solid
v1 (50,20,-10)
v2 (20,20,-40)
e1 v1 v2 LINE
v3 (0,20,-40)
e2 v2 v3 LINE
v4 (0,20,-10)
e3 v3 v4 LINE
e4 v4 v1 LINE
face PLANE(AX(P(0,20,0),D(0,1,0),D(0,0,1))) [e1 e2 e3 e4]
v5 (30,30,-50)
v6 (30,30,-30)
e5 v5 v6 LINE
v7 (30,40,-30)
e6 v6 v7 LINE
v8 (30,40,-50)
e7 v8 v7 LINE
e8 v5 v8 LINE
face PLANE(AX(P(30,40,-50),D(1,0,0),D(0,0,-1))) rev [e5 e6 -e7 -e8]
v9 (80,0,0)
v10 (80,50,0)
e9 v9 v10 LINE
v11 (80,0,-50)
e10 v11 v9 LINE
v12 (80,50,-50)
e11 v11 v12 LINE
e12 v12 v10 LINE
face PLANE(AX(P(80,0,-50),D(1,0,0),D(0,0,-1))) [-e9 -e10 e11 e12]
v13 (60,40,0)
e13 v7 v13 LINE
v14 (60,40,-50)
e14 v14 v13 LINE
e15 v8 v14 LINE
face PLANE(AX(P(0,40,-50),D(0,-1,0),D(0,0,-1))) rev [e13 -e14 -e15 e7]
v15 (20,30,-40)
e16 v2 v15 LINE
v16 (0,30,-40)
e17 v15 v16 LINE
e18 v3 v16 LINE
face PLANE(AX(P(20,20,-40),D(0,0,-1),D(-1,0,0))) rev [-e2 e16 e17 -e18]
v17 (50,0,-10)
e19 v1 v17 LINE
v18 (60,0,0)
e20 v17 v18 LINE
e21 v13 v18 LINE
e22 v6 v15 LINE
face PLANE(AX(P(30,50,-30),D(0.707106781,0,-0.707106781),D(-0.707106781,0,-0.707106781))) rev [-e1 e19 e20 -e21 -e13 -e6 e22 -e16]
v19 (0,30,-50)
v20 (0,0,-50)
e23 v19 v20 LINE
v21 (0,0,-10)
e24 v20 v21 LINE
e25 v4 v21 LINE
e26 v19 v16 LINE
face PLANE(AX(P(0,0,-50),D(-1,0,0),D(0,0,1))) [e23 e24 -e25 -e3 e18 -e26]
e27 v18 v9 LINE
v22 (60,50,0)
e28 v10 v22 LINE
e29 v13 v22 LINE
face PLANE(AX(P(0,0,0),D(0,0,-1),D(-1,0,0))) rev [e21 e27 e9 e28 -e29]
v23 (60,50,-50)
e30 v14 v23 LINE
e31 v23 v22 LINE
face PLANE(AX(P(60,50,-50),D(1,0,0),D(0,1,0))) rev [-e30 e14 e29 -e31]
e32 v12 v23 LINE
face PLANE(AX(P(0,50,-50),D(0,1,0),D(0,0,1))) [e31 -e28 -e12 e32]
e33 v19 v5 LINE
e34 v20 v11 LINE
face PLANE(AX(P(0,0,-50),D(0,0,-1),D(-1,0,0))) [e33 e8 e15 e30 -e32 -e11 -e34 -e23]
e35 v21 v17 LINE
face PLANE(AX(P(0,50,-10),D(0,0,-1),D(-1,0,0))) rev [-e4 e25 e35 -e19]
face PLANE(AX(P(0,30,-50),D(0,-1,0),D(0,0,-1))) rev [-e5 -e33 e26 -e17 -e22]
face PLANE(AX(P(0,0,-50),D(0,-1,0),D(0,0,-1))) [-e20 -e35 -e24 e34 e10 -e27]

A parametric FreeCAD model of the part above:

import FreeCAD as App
import Part
import Sketcher

doc = App.newDocument("Part")
params = doc.addObject("Spreadsheet::Sheet", "Params")
for row, (alias, value) in enumerate([
    ("sketch1_width", "80 mm"),
    ("sketch1_height", "50 mm"),
    ("pad1_length", "50 mm"),
    ("sketch2_width", "60 mm"),
    ("sketch2_height", "10 mm"),
    ("pocket1_length", "50 mm"),
    ("sketch3_width", "30 mm"),
    ("sketch3_height", "10 mm"),
    ("pocket2_length", "50 mm"),
    ("sketch4_width", "60 mm"),
    ("sketch4_width2", "50 mm"),
    ("sketch4_height", "10 mm"),
    ("pocket3_length", "50 mm"),
    ("sketch5_width", "20 mm"),
    ("pocket4_length", "20 mm"),
    ("sketch6_width", "50 mm"),
    ("sketch6_width2", "20 mm"),
    ("sketch6_height", "30 mm"),
    ("pocket5_length", "10 mm"),
], start=1):
    params.set(f"A{row}", alias)
    params.set(f"B{row}", "=" + value)
    params.setAlias(f"B{row}", alias)

body = doc.addObject("PartDesign::Body", "Body")

sketch1 = doc.addObject("Sketcher::SketchObject", "Sketch")
body.addObject(sketch1)
sketch1.AttachmentSupport = (doc.XY_Plane, [""])
sketch1.MapMode = "FlatFace"
sketch1.addGeometry(Part.LineSegment(App.Vector(0, 50, 0), App.Vector(0, 0, 0)), False)
sketch1.addGeometry(Part.LineSegment(App.Vector(0, 0, 0), App.Vector(80, 0, 0)), False)
sketch1.addGeometry(Part.LineSegment(App.Vector(80, 0, 0), App.Vector(80, 50, 0)), False)
sketch1.addGeometry(Part.LineSegment(App.Vector(80, 50, 0), App.Vector(0, 50, 0)), False)
sketch1.addConstraint(Sketcher.Constraint("Coincident", 0, 2, 1, 1))
sketch1.addConstraint(Sketcher.Constraint("Coincident", 1, 2, 2, 1))
sketch1.addConstraint(Sketcher.Constraint("Coincident", 2, 2, 3, 1))
sketch1.addConstraint(Sketcher.Constraint("Coincident", 3, 2, 0, 1))
sketch1.addConstraint(Sketcher.Constraint("Vertical", 0))
sketch1.addConstraint(Sketcher.Constraint("Horizontal", 1))
sketch1.addConstraint(Sketcher.Constraint("Vertical", 2))
sketch1.addConstraint(Sketcher.Constraint("Horizontal", 3))
sketch1.addConstraint(Sketcher.Constraint("Coincident", 0, 2, -1, 1))
sketch1.addConstraint(Sketcher.Constraint("DistanceX", 1, 1, 1, 2, 80.0))
sketch1.addConstraint(Sketcher.Constraint("DistanceY", 0, 2, 0, 1, 50.0))
sketch1.setExpression("Constraints[9]", "Params.sketch1_width")
sketch1.setExpression("Constraints[10]", "Params.sketch1_height")
pad1 = doc.addObject("PartDesign::Pad", "Pad")
body.addObject(pad1)
pad1.Profile = sketch1
pad1.setExpression("Length", "Params.pad1_length")
pad1.Reversed = True

sketch2 = doc.addObject("Sketcher::SketchObject", "Sketch001")
body.addObject(sketch2)
sketch2.AttachmentSupport = (doc.XY_Plane, [""])
sketch2.MapMode = "FlatFace"
sketch2.addGeometry(Part.LineSegment(App.Vector(0, 50, 0), App.Vector(0, 40, 0)), False)
sketch2.addGeometry(Part.LineSegment(App.Vector(0, 40, 0), App.Vector(60, 40, 0)), False)
sketch2.addGeometry(Part.LineSegment(App.Vector(60, 40, 0), App.Vector(60, 50, 0)), False)
sketch2.addGeometry(Part.LineSegment(App.Vector(60, 50, 0), App.Vector(0, 50, 0)), False)
sketch2.addConstraint(Sketcher.Constraint("Coincident", 0, 2, 1, 1))
sketch2.addConstraint(Sketcher.Constraint("Coincident", 1, 2, 2, 1))
sketch2.addConstraint(Sketcher.Constraint("Coincident", 2, 2, 3, 1))
sketch2.addConstraint(Sketcher.Constraint("Coincident", 3, 2, 0, 1))
sketch2.addConstraint(Sketcher.Constraint("Vertical", 0))
sketch2.addConstraint(Sketcher.Constraint("Horizontal", 1))
sketch2.addConstraint(Sketcher.Constraint("Vertical", 2))
sketch2.addConstraint(Sketcher.Constraint("Horizontal", 3))
sketch2.addConstraint(Sketcher.Constraint("PointOnObject", 0, 2, -2))
sketch2.addConstraint(Sketcher.Constraint("DistanceX", 1, 1, 1, 2, 60.0))
sketch2.addConstraint(Sketcher.Constraint("DistanceY", 0, 2, 0, 1, 10.0))
sketch2.addConstraint(Sketcher.Constraint("DistanceY", -1, 1, 0, 2, 40.0))
sketch2.setExpression("Constraints[9]", "Params.sketch2_width")
sketch2.setExpression("Constraints[10]", "Params.sketch2_height")
pocket1 = doc.addObject("PartDesign::Pocket", "Pocket")
body.addObject(pocket1)
pocket1.Profile = sketch2
pocket1.setExpression("Length", "Params.pocket1_length")

sketch3 = doc.addObject("Sketcher::SketchObject", "Sketch002")
body.addObject(sketch3)
sketch3.AttachmentSupport = (doc.XY_Plane, [""])
sketch3.MapMode = "FlatFace"
sketch3.addGeometry(Part.LineSegment(App.Vector(0, 40, 0), App.Vector(0, 30, 0)), False)
sketch3.addGeometry(Part.LineSegment(App.Vector(0, 30, 0), App.Vector(30, 30, 0)), False)
sketch3.addGeometry(Part.LineSegment(App.Vector(30, 30, 0), App.Vector(30, 40, 0)), False)
sketch3.addGeometry(Part.LineSegment(App.Vector(30, 40, 0), App.Vector(0, 40, 0)), False)
sketch3.addConstraint(Sketcher.Constraint("Coincident", 0, 2, 1, 1))
sketch3.addConstraint(Sketcher.Constraint("Coincident", 1, 2, 2, 1))
sketch3.addConstraint(Sketcher.Constraint("Coincident", 2, 2, 3, 1))
sketch3.addConstraint(Sketcher.Constraint("Coincident", 3, 2, 0, 1))
sketch3.addConstraint(Sketcher.Constraint("Vertical", 0))
sketch3.addConstraint(Sketcher.Constraint("Horizontal", 1))
sketch3.addConstraint(Sketcher.Constraint("Vertical", 2))
sketch3.addConstraint(Sketcher.Constraint("Horizontal", 3))
sketch3.addConstraint(Sketcher.Constraint("PointOnObject", 0, 2, -2))
sketch3.addConstraint(Sketcher.Constraint("DistanceX", 1, 1, 1, 2, 30.0))
sketch3.addConstraint(Sketcher.Constraint("DistanceY", 0, 2, 0, 1, 10.0))
sketch3.addConstraint(Sketcher.Constraint("DistanceY", -1, 1, 0, 2, 30.0))
sketch3.setExpression("Constraints[9]", "Params.sketch3_width")
sketch3.setExpression("Constraints[10]", "Params.sketch3_height")
pocket2 = doc.addObject("PartDesign::Pocket", "Pocket001")
body.addObject(pocket2)
pocket2.Profile = sketch3
pocket2.setExpression("Length", "Params.pocket2_length")

sketch4 = doc.addObject("Sketcher::SketchObject", "Sketch003")
body.addObject(sketch4)
sketch4.AttachmentSupport = (doc.XZ_Plane, [""])
sketch4.MapMode = "FlatFace"
sketch4.addGeometry(Part.LineSegment(App.Vector(60, 0, 0), App.Vector(0, 0, 0)), False)
sketch4.addGeometry(Part.LineSegment(App.Vector(0, 0, 0), App.Vector(0, -10, 0)), False)
sketch4.addGeometry(Part.LineSegment(App.Vector(0, -10, 0), App.Vector(50, -10, 0)), False)
sketch4.addGeometry(Part.LineSegment(App.Vector(50, -10, 0), App.Vector(60, 0, 0)), False)
sketch4.addConstraint(Sketcher.Constraint("Coincident", 0, 2, 1, 1))
sketch4.addConstraint(Sketcher.Constraint("Coincident", 1, 2, 2, 1))
sketch4.addConstraint(Sketcher.Constraint("Coincident", 2, 2, 3, 1))
sketch4.addConstraint(Sketcher.Constraint("Coincident", 3, 2, 0, 1))
sketch4.addConstraint(Sketcher.Constraint("Horizontal", 0))
sketch4.addConstraint(Sketcher.Constraint("Vertical", 1))
sketch4.addConstraint(Sketcher.Constraint("Horizontal", 2))
sketch4.addConstraint(Sketcher.Constraint("Coincident", 0, 2, -1, 1))
sketch4.addConstraint(Sketcher.Constraint("DistanceX", 0, 2, 0, 1, 60.0))
sketch4.addConstraint(Sketcher.Constraint("DistanceX", 2, 1, 2, 2, 50.0))
sketch4.addConstraint(Sketcher.Constraint("DistanceY", 1, 2, 1, 1, 10.0))
sketch4.setExpression("Constraints[8]", "Params.sketch4_width")
sketch4.setExpression("Constraints[9]", "Params.sketch4_width2")
sketch4.setExpression("Constraints[10]", "Params.sketch4_height")
pocket3 = doc.addObject("PartDesign::Pocket", "Pocket002")
body.addObject(pocket3)
pocket3.Profile = sketch4
pocket3.setExpression("Length", "Params.pocket3_length")

sketch5 = doc.addObject("Sketcher::SketchObject", "Sketch004")
body.addObject(sketch5)
sketch5.AttachmentSupport = (doc.XZ_Plane, [""])
sketch5.MapMode = "FlatFace"
sketch5.AttachmentOffset = App.Placement(App.Vector(0, 0, -40), App.Rotation())
sketch5.addGeometry(Part.LineSegment(App.Vector(50, -10, 0), App.Vector(30, -30, 0)), False)
sketch5.addGeometry(Part.LineSegment(App.Vector(30, -30, 0), App.Vector(30, -10, 0)), False)
sketch5.addGeometry(Part.LineSegment(App.Vector(30, -10, 0), App.Vector(50, -10, 0)), False)
sketch5.addConstraint(Sketcher.Constraint("Coincident", 0, 2, 1, 1))
sketch5.addConstraint(Sketcher.Constraint("Coincident", 1, 2, 2, 1))
sketch5.addConstraint(Sketcher.Constraint("Coincident", 2, 2, 0, 1))
sketch5.addConstraint(Sketcher.Constraint("Vertical", 1))
sketch5.addConstraint(Sketcher.Constraint("Horizontal", 2))
sketch5.addConstraint(Sketcher.Constraint("Equal", 2, 1))
sketch5.addConstraint(Sketcher.Constraint("DistanceX", 2, 1, 2, 2, 20.0))
sketch5.addConstraint(Sketcher.Constraint("DistanceX", -1, 1, 0, 2, 30.0))
sketch5.addConstraint(Sketcher.Constraint("DistanceY", 0, 2, -1, 1, 30.0))
sketch5.setExpression("Constraints[6]", "Params.sketch5_width")
pocket4 = doc.addObject("PartDesign::Pocket", "Pocket003")
body.addObject(pocket4)
pocket4.Profile = sketch5
pocket4.setExpression("Length", "Params.pocket4_length")
pocket4.Reversed = True

sketch6 = doc.addObject("Sketcher::SketchObject", "Sketch005")
body.addObject(sketch6)
sketch6.AttachmentSupport = (doc.XZ_Plane, [""])
sketch6.MapMode = "FlatFace"
sketch6.AttachmentOffset = App.Placement(App.Vector(0, 0, -30), App.Rotation())
sketch6.addGeometry(Part.LineSegment(App.Vector(0, -10, 0), App.Vector(50, -10, 0)), False)
sketch6.addGeometry(Part.LineSegment(App.Vector(50, -10, 0), App.Vector(20, -40, 0)), False)
sketch6.addGeometry(Part.LineSegment(App.Vector(20, -40, 0), App.Vector(0, -40, 0)), False)
sketch6.addGeometry(Part.LineSegment(App.Vector(0, -40, 0), App.Vector(0, -10, 0)), False)
sketch6.addConstraint(Sketcher.Constraint("Coincident", 0, 2, 1, 1))
sketch6.addConstraint(Sketcher.Constraint("Coincident", 1, 2, 2, 1))
sketch6.addConstraint(Sketcher.Constraint("Coincident", 2, 2, 3, 1))
sketch6.addConstraint(Sketcher.Constraint("Coincident", 3, 2, 0, 1))
sketch6.addConstraint(Sketcher.Constraint("Horizontal", 0))
sketch6.addConstraint(Sketcher.Constraint("Horizontal", 2))
sketch6.addConstraint(Sketcher.Constraint("Vertical", 3))
sketch6.addConstraint(Sketcher.Constraint("PointOnObject", 2, 2, -2))
sketch6.addConstraint(Sketcher.Constraint("DistanceX", 0, 1, 0, 2, 50.0))
sketch6.addConstraint(Sketcher.Constraint("DistanceX", 2, 2, 2, 1, 20.0))
sketch6.addConstraint(Sketcher.Constraint("DistanceY", 3, 1, 3, 2, 30.0))
sketch6.addConstraint(Sketcher.Constraint("DistanceY", 0, 2, -1, 1, 10.0))
sketch6.setExpression("Constraints[8]", "Params.sketch6_width")
sketch6.setExpression("Constraints[9]", "Params.sketch6_width2")
sketch6.setExpression("Constraints[10]", "Params.sketch6_height")
pocket5 = doc.addObject("PartDesign::Pocket", "Pocket004")
body.addObject(pocket5)
pocket5.Profile = sketch6
pocket5.setExpression("Length", "Params.pocket5_length")
pocket5.Reversed = True

doc.recompute()
